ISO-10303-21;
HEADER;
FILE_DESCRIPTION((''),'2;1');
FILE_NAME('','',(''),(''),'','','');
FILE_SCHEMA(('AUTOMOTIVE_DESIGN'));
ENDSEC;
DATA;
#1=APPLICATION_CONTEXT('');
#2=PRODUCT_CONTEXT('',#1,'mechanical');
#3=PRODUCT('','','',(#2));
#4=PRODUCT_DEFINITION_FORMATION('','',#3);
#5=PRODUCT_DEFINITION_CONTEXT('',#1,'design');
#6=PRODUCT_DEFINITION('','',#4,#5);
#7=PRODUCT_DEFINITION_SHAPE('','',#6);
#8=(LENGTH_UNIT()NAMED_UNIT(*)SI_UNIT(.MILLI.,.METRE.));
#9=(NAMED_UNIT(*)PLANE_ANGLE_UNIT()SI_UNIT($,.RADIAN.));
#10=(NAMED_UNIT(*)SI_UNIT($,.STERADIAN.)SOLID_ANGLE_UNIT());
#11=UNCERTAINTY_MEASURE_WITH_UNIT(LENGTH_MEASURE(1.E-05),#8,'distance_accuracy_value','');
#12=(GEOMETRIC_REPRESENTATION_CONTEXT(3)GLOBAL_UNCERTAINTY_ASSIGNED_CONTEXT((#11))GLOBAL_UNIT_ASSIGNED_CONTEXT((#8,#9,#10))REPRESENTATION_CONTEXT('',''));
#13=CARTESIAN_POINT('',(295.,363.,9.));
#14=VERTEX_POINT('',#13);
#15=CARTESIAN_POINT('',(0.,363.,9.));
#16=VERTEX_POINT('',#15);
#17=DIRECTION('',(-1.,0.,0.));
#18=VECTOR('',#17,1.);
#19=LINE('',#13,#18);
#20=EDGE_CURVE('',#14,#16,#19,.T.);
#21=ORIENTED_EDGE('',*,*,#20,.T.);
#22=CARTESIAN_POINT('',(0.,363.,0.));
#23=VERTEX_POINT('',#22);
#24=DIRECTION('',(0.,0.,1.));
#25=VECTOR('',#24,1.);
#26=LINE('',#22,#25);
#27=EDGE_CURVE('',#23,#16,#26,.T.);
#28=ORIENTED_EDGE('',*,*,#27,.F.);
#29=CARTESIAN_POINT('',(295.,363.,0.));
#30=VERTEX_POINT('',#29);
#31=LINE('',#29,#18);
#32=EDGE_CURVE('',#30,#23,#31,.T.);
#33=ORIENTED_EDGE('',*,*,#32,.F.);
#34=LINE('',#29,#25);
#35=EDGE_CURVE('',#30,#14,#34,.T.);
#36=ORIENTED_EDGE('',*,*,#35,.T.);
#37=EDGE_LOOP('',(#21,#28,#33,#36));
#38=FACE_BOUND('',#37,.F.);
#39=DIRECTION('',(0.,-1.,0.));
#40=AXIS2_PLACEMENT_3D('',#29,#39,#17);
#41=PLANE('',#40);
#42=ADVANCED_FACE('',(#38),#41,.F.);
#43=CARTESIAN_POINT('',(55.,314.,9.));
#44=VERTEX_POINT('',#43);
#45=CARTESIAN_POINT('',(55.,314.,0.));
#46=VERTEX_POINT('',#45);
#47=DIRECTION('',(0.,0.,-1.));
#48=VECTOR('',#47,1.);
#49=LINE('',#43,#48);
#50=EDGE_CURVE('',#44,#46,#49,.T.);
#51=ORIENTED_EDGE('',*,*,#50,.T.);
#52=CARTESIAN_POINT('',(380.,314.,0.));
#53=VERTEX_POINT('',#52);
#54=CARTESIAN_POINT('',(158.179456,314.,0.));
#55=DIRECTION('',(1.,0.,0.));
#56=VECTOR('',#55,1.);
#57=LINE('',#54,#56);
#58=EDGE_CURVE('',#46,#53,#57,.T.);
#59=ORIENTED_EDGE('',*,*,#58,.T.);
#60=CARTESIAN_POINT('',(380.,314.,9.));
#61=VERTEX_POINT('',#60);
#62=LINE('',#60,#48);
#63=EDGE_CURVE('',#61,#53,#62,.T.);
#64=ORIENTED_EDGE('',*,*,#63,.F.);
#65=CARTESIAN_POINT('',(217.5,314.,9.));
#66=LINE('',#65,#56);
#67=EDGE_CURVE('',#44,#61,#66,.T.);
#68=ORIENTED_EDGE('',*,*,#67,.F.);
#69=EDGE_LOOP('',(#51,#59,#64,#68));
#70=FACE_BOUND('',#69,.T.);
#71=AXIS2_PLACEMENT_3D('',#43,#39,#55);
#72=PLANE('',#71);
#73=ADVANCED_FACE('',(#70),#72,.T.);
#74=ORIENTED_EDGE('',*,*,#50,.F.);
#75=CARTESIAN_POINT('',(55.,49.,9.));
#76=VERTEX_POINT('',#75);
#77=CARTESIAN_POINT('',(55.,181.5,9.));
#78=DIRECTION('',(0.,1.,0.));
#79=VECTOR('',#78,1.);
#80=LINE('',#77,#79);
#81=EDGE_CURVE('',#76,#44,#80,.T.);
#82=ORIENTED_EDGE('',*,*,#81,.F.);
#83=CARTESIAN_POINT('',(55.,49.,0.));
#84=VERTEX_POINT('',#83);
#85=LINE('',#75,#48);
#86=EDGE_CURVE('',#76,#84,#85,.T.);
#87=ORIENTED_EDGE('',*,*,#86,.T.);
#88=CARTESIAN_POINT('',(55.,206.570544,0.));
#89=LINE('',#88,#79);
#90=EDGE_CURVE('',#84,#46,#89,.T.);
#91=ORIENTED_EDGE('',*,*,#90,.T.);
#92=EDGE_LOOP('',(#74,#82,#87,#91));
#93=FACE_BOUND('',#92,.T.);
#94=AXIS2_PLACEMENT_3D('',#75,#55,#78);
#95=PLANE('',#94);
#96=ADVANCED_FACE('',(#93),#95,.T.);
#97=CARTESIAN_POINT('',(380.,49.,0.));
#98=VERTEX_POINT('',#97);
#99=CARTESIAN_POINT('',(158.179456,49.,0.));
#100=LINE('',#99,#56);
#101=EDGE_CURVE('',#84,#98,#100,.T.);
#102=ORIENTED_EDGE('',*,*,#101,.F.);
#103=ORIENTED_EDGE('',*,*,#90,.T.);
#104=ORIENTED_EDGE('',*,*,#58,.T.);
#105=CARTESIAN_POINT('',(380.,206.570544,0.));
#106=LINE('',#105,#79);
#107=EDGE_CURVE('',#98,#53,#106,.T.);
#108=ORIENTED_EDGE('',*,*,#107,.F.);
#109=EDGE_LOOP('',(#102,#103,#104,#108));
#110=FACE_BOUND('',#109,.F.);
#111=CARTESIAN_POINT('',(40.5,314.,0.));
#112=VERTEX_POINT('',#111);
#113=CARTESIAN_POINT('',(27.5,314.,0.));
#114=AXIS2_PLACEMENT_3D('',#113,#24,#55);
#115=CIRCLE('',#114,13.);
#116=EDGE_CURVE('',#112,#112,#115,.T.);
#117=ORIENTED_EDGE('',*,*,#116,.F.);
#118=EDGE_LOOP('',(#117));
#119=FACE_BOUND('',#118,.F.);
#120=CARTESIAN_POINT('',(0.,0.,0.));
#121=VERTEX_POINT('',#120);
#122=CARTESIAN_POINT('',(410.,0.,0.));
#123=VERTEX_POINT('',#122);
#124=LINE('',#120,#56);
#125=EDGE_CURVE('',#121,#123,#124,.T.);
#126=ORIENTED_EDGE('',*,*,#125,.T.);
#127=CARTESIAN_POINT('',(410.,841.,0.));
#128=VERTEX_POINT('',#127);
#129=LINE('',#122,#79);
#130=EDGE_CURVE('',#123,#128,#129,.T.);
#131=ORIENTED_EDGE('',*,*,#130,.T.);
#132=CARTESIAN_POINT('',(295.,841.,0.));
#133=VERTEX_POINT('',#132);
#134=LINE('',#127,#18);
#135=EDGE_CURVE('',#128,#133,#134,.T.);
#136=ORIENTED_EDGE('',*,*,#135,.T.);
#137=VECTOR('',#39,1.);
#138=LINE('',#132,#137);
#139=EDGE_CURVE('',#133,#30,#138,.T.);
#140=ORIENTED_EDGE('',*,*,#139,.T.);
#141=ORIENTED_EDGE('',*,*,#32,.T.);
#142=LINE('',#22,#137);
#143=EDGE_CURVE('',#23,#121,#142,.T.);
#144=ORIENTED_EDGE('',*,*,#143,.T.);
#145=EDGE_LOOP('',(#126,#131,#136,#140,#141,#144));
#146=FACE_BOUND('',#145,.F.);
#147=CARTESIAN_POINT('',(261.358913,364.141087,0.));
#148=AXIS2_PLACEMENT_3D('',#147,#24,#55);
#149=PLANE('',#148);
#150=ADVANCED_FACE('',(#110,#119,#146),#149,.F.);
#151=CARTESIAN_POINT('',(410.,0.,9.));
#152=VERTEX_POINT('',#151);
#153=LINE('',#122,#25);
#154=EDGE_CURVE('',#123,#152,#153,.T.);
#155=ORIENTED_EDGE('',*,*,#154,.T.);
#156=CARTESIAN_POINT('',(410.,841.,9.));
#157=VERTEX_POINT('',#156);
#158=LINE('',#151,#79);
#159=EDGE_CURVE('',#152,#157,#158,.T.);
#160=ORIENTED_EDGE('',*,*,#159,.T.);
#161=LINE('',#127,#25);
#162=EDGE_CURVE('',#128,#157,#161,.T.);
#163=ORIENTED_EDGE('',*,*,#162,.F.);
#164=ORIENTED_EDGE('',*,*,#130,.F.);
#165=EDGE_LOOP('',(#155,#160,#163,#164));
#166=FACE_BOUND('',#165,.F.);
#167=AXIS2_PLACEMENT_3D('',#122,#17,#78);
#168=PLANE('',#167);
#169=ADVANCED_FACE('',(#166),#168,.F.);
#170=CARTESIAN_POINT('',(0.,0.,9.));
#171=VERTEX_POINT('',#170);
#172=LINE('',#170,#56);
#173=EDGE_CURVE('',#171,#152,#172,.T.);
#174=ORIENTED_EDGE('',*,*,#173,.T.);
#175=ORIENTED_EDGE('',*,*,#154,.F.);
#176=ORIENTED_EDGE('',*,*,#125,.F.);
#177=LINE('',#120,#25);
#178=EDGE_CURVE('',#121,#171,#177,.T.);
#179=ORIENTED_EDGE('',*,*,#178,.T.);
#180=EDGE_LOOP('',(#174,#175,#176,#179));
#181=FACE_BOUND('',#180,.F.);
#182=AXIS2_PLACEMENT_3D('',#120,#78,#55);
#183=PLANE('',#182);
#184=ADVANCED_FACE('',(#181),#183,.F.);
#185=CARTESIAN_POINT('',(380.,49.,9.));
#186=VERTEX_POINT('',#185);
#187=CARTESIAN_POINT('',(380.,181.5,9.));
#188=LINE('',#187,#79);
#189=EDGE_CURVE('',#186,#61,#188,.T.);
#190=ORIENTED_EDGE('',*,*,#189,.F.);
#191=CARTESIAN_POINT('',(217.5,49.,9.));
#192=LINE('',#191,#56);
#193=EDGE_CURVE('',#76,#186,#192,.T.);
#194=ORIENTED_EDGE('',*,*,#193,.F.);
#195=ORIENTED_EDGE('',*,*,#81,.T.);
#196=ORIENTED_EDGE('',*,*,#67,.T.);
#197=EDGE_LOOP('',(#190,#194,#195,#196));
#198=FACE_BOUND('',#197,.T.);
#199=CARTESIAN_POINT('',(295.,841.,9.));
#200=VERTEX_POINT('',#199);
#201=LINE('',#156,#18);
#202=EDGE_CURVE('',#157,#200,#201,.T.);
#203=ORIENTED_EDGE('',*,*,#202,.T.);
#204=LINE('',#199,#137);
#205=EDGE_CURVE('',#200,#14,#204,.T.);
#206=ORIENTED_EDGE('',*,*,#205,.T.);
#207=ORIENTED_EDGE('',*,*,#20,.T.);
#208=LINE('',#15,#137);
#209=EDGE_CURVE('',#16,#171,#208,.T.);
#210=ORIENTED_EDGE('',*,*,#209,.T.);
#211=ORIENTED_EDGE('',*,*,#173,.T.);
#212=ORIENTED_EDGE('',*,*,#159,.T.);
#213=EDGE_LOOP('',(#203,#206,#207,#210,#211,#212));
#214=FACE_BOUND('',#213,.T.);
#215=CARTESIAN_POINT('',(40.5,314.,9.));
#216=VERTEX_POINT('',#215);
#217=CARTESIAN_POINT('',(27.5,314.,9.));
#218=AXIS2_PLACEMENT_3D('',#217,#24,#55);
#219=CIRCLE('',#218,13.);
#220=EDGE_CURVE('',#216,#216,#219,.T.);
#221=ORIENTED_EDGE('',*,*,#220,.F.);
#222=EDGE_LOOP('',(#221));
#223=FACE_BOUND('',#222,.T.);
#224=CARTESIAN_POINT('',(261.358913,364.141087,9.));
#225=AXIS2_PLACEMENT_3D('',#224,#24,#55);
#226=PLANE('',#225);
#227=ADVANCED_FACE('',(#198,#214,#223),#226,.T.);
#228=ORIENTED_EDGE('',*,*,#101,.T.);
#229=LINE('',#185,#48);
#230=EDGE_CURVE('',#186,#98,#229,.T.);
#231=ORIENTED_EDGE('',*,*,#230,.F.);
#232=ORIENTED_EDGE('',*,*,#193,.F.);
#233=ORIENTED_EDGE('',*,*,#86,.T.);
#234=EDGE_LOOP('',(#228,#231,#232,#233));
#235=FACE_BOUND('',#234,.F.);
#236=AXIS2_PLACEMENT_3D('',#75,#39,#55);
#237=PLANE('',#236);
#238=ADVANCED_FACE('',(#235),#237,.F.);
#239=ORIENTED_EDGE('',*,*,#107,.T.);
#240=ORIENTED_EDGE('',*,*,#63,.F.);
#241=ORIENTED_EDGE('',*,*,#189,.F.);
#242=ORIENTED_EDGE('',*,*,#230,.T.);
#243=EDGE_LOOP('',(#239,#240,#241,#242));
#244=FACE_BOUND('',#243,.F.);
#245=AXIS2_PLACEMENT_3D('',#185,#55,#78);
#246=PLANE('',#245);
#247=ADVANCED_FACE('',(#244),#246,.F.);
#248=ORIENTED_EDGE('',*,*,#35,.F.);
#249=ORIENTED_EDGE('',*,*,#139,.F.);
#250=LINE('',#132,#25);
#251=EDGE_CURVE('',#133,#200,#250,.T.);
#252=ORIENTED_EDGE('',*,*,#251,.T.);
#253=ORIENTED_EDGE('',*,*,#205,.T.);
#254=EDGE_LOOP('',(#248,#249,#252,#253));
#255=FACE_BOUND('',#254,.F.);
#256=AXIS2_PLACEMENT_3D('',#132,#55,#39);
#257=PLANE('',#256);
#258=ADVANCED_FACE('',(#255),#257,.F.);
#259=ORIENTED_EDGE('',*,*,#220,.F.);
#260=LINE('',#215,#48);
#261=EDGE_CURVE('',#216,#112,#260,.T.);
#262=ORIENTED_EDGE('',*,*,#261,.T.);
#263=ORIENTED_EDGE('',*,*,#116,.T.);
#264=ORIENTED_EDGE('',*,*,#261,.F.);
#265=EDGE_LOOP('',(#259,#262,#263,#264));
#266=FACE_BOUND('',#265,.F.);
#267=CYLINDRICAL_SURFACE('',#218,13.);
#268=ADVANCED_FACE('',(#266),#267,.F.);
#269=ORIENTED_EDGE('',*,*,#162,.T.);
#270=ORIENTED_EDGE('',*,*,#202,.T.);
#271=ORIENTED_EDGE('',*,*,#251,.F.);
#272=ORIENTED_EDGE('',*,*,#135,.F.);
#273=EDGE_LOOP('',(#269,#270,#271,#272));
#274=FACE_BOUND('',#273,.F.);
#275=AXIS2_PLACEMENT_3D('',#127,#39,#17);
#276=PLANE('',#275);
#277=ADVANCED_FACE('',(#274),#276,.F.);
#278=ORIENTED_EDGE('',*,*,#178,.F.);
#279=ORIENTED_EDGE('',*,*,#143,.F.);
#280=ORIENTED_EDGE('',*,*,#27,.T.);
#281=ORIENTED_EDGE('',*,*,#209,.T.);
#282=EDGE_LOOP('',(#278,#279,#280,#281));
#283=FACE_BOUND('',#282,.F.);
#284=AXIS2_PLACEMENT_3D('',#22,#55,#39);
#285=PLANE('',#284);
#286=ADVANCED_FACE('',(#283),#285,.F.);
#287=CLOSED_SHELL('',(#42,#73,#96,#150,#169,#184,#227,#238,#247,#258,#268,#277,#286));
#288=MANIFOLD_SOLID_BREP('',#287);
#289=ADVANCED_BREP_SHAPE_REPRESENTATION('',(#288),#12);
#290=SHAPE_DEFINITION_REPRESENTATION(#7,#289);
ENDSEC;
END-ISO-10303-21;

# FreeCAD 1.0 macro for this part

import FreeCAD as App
import Part
import Sketcher

V = App.Vector


def add_polygon(sketch, points):
    """Adds a closed chain of lines whose ends are joined by coincident constraints."""
    first, n = sketch.GeometryCount, len(points)
    for a, b in zip(points, points[1:] + points[:1]):
        sketch.addGeometry(Part.LineSegment(App.Vector(*a, 0), App.Vector(*b, 0)), False)
    for i in range(n):
        sketch.addConstraint(Sketcher.Constraint("Coincident", first + i, 2, first + (i + 1) % n, 1))

doc = App.newDocument("Part")
body = doc.addObject("PartDesign::Body", "Body")

sketch1 = doc.addObject("Sketcher::SketchObject", "Sketch")
body.addObject(sketch1)
sketch1.AttachmentSupport = (doc.XY_Plane, [""])
sketch1.MapMode = "FlatFace"
add_polygon(sketch1, [(410, 0), (410, 841), (295, 841), (295, 363), (0, 363), (0, 0)])
sketch1.addConstraint([
    Sketcher.Constraint("Vertical", 0),
    Sketcher.Constraint("Horizontal", 1),
    Sketcher.Constraint("Vertical", 2),
    Sketcher.Constraint("Horizontal", 3),
    Sketcher.Constraint("Vertical", 4),
    Sketcher.Constraint("Horizontal", 5),
    Sketcher.Constraint("Coincident", 4, 2, -1, 1),
    Sketcher.Constraint("DistanceX", 1, 2, 1, 1, 115.0),
    Sketcher.Constraint("DistanceX", 3, 2, 3, 1, 295.0),
    Sketcher.Constraint("DistanceY", 0, 1, 0, 2, 841.0),
    Sketcher.Constraint("DistanceY", 2, 2, 2, 1, 478.0),
])
pad1 = doc.addObject("PartDesign::Pad", "Pad")
body.addObject(pad1)
pad1.Profile = sketch1
pad1.Length = 9

sketch2 = doc.addObject("Sketcher::SketchObject", "Sketch001")
body.addObject(sketch2)
sketch2.AttachmentSupport = (doc.XY_Plane, [""])
sketch2.MapMode = "FlatFace"
sketch2.AttachmentOffset = App.Placement(V(0, 0, 9), App.Rotation())
add_polygon(sketch2, [(55, 314), (55, 49), (380, 49), (380, 314)])
sketch2.addGeometry(Part.Circle(V(28, 314, 0), V(0, 0, 1), 13), False)
sketch2.addConstraint([
    Sketcher.Constraint("Vertical", 0),
    Sketcher.Constraint("Horizontal", 1),
    Sketcher.Constraint("Vertical", 2),
    Sketcher.Constraint("Horizontal", 3),
    Sketcher.Constraint("Horizontal", 4, 3, 2, 2),
    Sketcher.Constraint("Diameter", 4, 26.0),
    Sketcher.Constraint("DistanceX", 1, 1, 1, 2, 325.0),
    Sketcher.Constraint("DistanceY", 0, 2, 0, 1, 265.0),
    Sketcher.Constraint("DistanceY", -1, 1, 4, 3, 314.0),
    Sketcher.Constraint("DistanceX", -1, 1, 0, 2, 55.0),
    Sketcher.Constraint("DistanceX", -1, 1, 4, 3, 27.5),
])
pocket1 = doc.addObject("PartDesign::Pocket", "Pocket")
body.addObject(pocket1)
pocket1.Profile = sketch2
pocket1.Length = 25

doc.recompute()
